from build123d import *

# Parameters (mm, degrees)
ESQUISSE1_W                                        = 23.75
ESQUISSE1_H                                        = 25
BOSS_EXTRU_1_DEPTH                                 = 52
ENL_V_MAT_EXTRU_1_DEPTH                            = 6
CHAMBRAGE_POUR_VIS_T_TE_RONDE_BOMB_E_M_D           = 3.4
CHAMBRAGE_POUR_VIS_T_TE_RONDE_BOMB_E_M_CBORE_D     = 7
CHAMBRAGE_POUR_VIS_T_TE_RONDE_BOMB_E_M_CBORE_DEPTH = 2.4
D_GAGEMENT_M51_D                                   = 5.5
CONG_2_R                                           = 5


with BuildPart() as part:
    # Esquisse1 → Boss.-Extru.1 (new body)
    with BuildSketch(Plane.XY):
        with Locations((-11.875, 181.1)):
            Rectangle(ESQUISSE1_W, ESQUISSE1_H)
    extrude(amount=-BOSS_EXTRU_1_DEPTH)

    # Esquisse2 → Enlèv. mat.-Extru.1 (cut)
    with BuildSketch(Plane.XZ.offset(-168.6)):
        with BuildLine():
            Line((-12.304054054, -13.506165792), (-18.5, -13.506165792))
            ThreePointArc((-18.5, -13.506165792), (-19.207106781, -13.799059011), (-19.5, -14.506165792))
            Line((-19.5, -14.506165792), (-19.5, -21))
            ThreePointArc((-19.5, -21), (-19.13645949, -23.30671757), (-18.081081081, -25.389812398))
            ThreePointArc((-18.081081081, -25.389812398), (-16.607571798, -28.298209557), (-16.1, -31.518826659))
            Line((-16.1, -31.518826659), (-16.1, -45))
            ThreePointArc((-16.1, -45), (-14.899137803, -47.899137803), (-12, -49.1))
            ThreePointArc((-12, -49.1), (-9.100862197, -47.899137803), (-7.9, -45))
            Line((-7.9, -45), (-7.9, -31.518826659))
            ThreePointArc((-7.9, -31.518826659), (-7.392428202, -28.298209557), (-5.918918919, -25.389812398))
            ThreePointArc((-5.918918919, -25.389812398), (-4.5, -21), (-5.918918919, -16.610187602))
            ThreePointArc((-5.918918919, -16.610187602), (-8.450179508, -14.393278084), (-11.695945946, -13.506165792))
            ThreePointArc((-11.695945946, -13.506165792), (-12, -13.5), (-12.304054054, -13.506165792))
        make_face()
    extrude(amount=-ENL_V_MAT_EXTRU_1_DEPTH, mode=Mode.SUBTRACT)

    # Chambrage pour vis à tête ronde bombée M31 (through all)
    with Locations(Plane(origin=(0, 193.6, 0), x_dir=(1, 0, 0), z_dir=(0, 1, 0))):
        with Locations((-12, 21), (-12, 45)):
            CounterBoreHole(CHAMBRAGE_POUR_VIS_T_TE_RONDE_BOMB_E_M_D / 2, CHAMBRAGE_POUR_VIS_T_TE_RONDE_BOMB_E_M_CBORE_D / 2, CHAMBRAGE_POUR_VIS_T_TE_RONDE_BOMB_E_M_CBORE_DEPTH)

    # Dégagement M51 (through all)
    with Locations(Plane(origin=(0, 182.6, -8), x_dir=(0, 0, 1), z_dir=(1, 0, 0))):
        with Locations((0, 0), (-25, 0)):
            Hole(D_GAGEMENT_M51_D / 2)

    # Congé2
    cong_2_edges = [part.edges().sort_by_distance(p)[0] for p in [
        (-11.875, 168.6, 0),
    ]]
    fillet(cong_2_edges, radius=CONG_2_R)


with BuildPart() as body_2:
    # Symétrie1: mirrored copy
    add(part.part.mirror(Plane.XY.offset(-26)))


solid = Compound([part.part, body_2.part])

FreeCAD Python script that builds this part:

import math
import FreeCAD as App
import Part
import Sketcher

V = App.Vector


def edges_at(feature, points):
    """Names of the edges that pass closest to the given points."""
    edges = feature.Shape.Edges
    near = lambda p: min(range(len(edges)), key=lambda i: edges[i].distToShape(Part.Vertex(*p))[0])
    return sorted({f"Edge{near(p) + 1}" for p in points})


def add_polygon(sketch, points):
    """Adds a closed chain of lines whose ends are joined by coincident constraints."""
    first, n = sketch.GeometryCount, len(points)
    for a, b in zip(points, points[1:] + points[:1]):
        sketch.addGeometry(Part.LineSegment(App.Vector(*a, 0), App.Vector(*b, 0)), False)
    for i in range(n):
        sketch.addConstraint(Sketcher.Constraint("Coincident", first + i, 2, first + (i + 1) % n, 1))

doc = App.newDocument("Part")
params = doc.addObject("Spreadsheet::Sheet", "Params")
for row, (alias, value) in enumerate([
    ("sketch1_height", "25 mm"),
    ("sketch1_width", "23.75 mm"),
    ("pad1_length", "52 mm"),
    ("sketch2_radius", "1 mm"),
    ("sketch2_radius2", "7.5 mm"),
    ("sketch2_radius3", "4.1 mm"),
    ("pocket1_length", "6 mm"),
    ("sketch3_diameter", "3.4 mm"),
    ("hole_diameter", "3.4 mm"),
    ("hole_cbore_diameter", "7 mm"),
    ("hole_cbore_depth", "2.4 mm"),
    ("sketch4_diameter", "5.5 mm"),
    ("hole2_diameter", "5.5 mm"),
    ("fillet_radius", "5 mm"),
], start=1):
    params.set(f"A{row}", alias)
    params.set(f"B{row}", "=" + value)
    params.setAlias(f"B{row}", alias)

body = doc.addObject("PartDesign::Body", "Body")

sketch1 = body.newObject("Sketcher::SketchObject", "Sketch")
sketch1.AttachmentSupport = (doc.getObject("XY_Plane"), [""])
sketch1.MapMode = "FlatFace"
add_polygon(sketch1, [(-23.75, 193.6), (-23.75, 168.6), (0, 168.6), (0, 193.6)])
sketch1.addConstraint(Sketcher.Constraint("Vertical", 0))
sketch1.addConstraint(Sketcher.Constraint("Horizontal", 1))
sketch1.addConstraint(Sketcher.Constraint("Vertical", 2))
sketch1.addConstraint(Sketcher.Constraint("Horizontal", 3))
sketch1.addConstraint(Sketcher.Constraint("PointOnObject", 1, 2, -2))
sketch1.addConstraint(Sketcher.Constraint("DistanceY", 0, 2, 0, 1, 25.0))
sketch1.addConstraint(Sketcher.Constraint("DistanceX", 1, 1, 1, 2, 23.75))
sketch1.addConstraint(Sketcher.Constraint("DistanceY", -1, 1, 0, 2, 168.6))
sketch1.setExpression("Constraints[9]", "Params.sketch1_height")
sketch1.setExpression("Constraints[10]", "Params.sketch1_width")
pad1 = body.newObject("PartDesign::Pad", "Pad")
pad1.Profile = sketch1
pad1.setExpression("Length", "Params.pad1_length")
pad1.Reversed = True

sketch2 = body.newObject("Sketcher::SketchObject", "Sketch001")
sketch2.AttachmentSupport = (doc.getObject("XZ_Plane"), [""])
sketch2.MapMode = "FlatFace"
sketch2.AttachmentOffset = App.Placement(V(0, 0, -168.6), App.Rotation())
sketch2.addGeometry(Part.LineSegment(V(-12.304054, -13.506166, 0), V(-18.5, -13.506166, 0)), False)
sketch2.addGeometry(Part.ArcOfCircle(Part.Circle(V(-18.5, -14.506166, 0), V(0, 0, 1), 1), math.radians(90), math.radians(180)), False)
sketch2.addGeometry(Part.LineSegment(V(-19.5, -14.506166, 0), V(-19.5, -21, 0)), False)
sketch2.addGeometry(Part.ArcOfCircle(Part.Circle(V(-12, -21, 0), V(0, 0, 1), 7.5), math.radians(180), math.radians(215.824774)), False)
sketch2.addGeometry(Part.ArcOfCircle(Part.Circle(V(-26.571429, -31.518827, 0), V(0, 0, 1), 10.471429), math.radians(0), math.radians(35.824774)), False)
sketch2.addGeometry(Part.LineSegment(V(-16.1, -31.518827, 0), V(-16.1, -45, 0)), False)
sketch2.addGeometry(Part.ArcOfCircle(Part.Circle(V(-12, -45, 0), V(0, 0, 1), 4.1), math.radians(180), math.radians(270)), False)
sketch2.addGeometry(Part.ArcOfCircle(Part.Circle(V(-12, -45, 0), V(0, 0, 1), 4.1), math.radians(-90), math.radians(0)), False)
sketch2.addGeometry(Part.LineSegment(V(-7.9, -45, 0), V(-7.9, -31.518827, 0)), False)
sketch2.addGeometry(Part.ArcOfCircle(Part.Circle(V(2.571429, -31.518827, 0), V(0, 0, 1), 10.471429), math.radians(144.175226), math.radians(180)), False)
sketch2.addGeometry(Part.ArcOfCircle(Part.Circle(V(-12, -21, 0), V(0, 0, 1), 7.5), math.radians(-35.824774), math.radians(35.824774)), False)
sketch2.addGeometry(Part.ArcOfCircle(Part.Circle(V(-12, -21, 0), V(0, 0, 1), 7.5), math.radians(35.824774), math.radians(87.676561)), False)
sketch2.addGeometry(Part.ArcOfCircle(Part.Circle(V(-12, -21, 0), V(0, 0, 1), 7.5), math.radians(87.676562), math.radians(92.323438)), False)
sketch2.addConstraint(Sketcher.Constraint("Tangent", 0, 2, 1, 1))
sketch2.addConstraint(Sketcher.Constraint("Tangent", 1, 2, 2, 1))
sketch2.addConstraint(Sketcher.Constraint("Tangent", 2, 2, 3, 1))
sketch2.addConstraint(Sketcher.Constraint("Tangent", 3, 2, 4, 2))
sketch2.addConstraint(Sketcher.Constraint("Tangent", 4, 1, 5, 1))
sketch2.addConstraint(Sketcher.Constraint("Tangent", 5, 2, 6, 1))
sketch2.addConstraint(Sketcher.Constraint("Tangent", 6, 2, 7, 1))
sketch2.addConstraint(Sketcher.Constraint("Tangent", 7, 2, 8, 1))
sketch2.addConstraint(Sketcher.Constraint("Tangent", 8, 2, 9, 2))
sketch2.addConstraint(Sketcher.Constraint("Tangent", 9, 1, 10, 1))
sketch2.addConstraint(Sketcher.Constraint("Tangent", 10, 2, 11, 1))
sketch2.addConstraint(Sketcher.Constraint("Tangent", 11, 2, 12, 1))
sketch2.addConstraint(Sketcher.Constraint("Coincident", 12, 2, 0, 1))
sketch2.addConstraint(Sketcher.Constraint("Horizontal", 0))
sketch2.addConstraint(Sketcher.Constraint("Vertical", 2))
sketch2.addConstraint(Sketcher.Constraint("Vertical", 5))
sketch2.addConstraint(Sketcher.Constraint("Vertical", 8))
sketch2.addConstraint(Sketcher.Constraint("Coincident", 10, 3, 3, 3))
sketch2.addConstraint(Sketcher.Constraint("Coincident", 12, 3, 3, 3))
sketch2.addConstraint(Sketcher.Constraint("Equal", 6, 7))
sketch2.addConstraint(Sketcher.Constraint("Equal", 4, 9))
sketch2.addConstraint(Sketcher.Constraint("Equal", 3, 10))
sketch2.addConstraint(Sketcher.Constraint("Horizontal", 4, 3, 9, 3))
sketch2.addConstraint(Sketcher.Constraint("Horizontal", 0, 2, 11, 2))
sketch2.addConstraint(Sketcher.Constraint("Vertical", 12, 3, 6, 2))
sketch2.addConstraint(Sketcher.Constraint("Vertical", 9, 1, 10, 2))
sketch2.addConstraint(Sketcher.Constraint("Radius", 1, 1.0))
sketch2.addConstraint(Sketcher.Constraint("Radius", 3, 7.5))
sketch2.addConstraint(Sketcher.Constraint("Radius", 6, 4.1))
sketch2.addConstraint(Sketcher.Constraint("DistanceX", 3, 3, -1, 1, 12.0))
sketch2.addConstraint(Sketcher.Constraint("DistanceY", 3, 3, -1, 1, 21.0))
sketch2.addConstraint(Sketcher.Constraint("DistanceY", 6, 3, -1, 1, 45.0))
sketch2.addConstraint(Sketcher.Constraint("Radius", 4, 10.471429))
sketch2.addConstraint(Sketcher.Constraint("DistanceX", 0, 2, 0, 1, 6.195946))
sketch2.setExpression("Constraints[26]", "Params.sketch2_radius")
sketch2.setExpression("Constraints[27]", "Params.sketch2_radius2")
sketch2.setExpression("Constraints[28]", "Params.sketch2_radius3")
pocket1 = body.newObject("PartDesign::Pocket", "Pocket")
pocket1.Profile = sketch2
pocket1.setExpression("Length", "Params.pocket1_length")

sketch3 = body.newObject("Sketcher::SketchObject", "Sketch002")
sketch3.AttachmentSupport = (doc.getObject("XZ_Plane"), [""])
sketch3.MapMode = "FlatFace"
sketch3.AttachmentOffset = App.Placement(V(0, 0, -193.6), App.Rotation())
sketch3.addGeometry(Part.Circle(V(-12, -21, 0), V(0, 0, 1), 1.7), False)
sketch3.addGeometry(Part.Circle(V(-12, -45, 0), V(0, 0, 1), 1.7), False)
sketch3.addConstraint(Sketcher.Constraint("Equal", 0, 1))
sketch3.addConstraint(Sketcher.Constraint("Vertical", 0, 3, 1, 3))
sketch3.addConstraint(Sketcher.Constraint("Diameter", 0, 3.4))
sketch3.addConstraint(Sketcher.Constraint("DistanceX", 0, 3, -1, 1, 12.0))
sketch3.addConstraint(Sketcher.Constraint("DistanceY", 0, 3, -1, 1, 21.0))
sketch3.addConstraint(Sketcher.Constraint("DistanceY", 1, 3, -1, 1, 45.0))
sketch3.setExpression("Constraints[2]", "Params.sketch3_diameter")
doc.recompute()
hole = body.newObject("PartDesign::Hole", "Hole")
hole.Profile = sketch3
hole.ThreadType = "None"
hole.setExpression("Diameter", "Params.hole_diameter")
hole.DepthType = "ThroughAll"
hole.HoleCutType = "Counterbore"
hole.setExpression("HoleCutDiameter", "Params.hole_cbore_diameter")
hole.setExpression("HoleCutDepth", "Params.hole_cbore_depth")
hole.Reversed = True

sketch4 = body.newObject("Sketcher::SketchObject", "Sketch003")
sketch4.AttachmentSupport = (doc.getObject("YZ_Plane"), [""])
sketch4.MapMode = "FlatFace"
sketch4.addGeometry(Part.Circle(V(182.6, -8, 0), V(0, 0, 1), 2.75), False)
sketch4.addGeometry(Part.Circle(V(182.6, -33, 0), V(0, 0, 1), 2.75), False)
sketch4.addConstraint(Sketcher.Constraint("Equal", 0, 1))
sketch4.addConstraint(Sketcher.Constraint("Vertical", 0, 3, 1, 3))
sketch4.addConstraint(Sketcher.Constraint("Diameter", 0, 5.5))
sketch4.addConstraint(Sketcher.Constraint("DistanceY", 0, 3, -1, 1, 8.0))
sketch4.addConstraint(Sketcher.Constraint("DistanceY", 1, 3, -1, 1, 33.0))
sketch4.addConstraint(Sketcher.Constraint("DistanceX", -1, 1, 0, 3, 182.6))
sketch4.setExpression("Constraints[2]", "Params.sketch4_diameter")
doc.recompute()
hole2 = body.newObject("PartDesign::Hole", "Hole001")
hole2.Profile = sketch4
hole2.ThreadType = "None"
hole2.setExpression("Diameter", "Params.hole2_diameter")
hole2.DepthType = "ThroughAll"
doc.recompute()

fillet = body.newObject("PartDesign::Fillet", "Fillet")
fillet.Base = (hole2, edges_at(hole2, [(-11.875, 168.6, 0)]))
fillet.setExpression("Radius", "Params.fillet_radius")
body2 = doc.addObject("PartDesign::Body", "Body001")
doc.recompute()

mirroring = doc.addObject("Part::Mirroring", "Mirroring")
mirroring.Source = body
mirroring.Base = V(0, 0, -26)
mirroring.Normal = V(0, 0, 1)
body2.BaseFeature = mirroring
doc.recompute()
mirroring.Visibility = False

doc.recompute()
